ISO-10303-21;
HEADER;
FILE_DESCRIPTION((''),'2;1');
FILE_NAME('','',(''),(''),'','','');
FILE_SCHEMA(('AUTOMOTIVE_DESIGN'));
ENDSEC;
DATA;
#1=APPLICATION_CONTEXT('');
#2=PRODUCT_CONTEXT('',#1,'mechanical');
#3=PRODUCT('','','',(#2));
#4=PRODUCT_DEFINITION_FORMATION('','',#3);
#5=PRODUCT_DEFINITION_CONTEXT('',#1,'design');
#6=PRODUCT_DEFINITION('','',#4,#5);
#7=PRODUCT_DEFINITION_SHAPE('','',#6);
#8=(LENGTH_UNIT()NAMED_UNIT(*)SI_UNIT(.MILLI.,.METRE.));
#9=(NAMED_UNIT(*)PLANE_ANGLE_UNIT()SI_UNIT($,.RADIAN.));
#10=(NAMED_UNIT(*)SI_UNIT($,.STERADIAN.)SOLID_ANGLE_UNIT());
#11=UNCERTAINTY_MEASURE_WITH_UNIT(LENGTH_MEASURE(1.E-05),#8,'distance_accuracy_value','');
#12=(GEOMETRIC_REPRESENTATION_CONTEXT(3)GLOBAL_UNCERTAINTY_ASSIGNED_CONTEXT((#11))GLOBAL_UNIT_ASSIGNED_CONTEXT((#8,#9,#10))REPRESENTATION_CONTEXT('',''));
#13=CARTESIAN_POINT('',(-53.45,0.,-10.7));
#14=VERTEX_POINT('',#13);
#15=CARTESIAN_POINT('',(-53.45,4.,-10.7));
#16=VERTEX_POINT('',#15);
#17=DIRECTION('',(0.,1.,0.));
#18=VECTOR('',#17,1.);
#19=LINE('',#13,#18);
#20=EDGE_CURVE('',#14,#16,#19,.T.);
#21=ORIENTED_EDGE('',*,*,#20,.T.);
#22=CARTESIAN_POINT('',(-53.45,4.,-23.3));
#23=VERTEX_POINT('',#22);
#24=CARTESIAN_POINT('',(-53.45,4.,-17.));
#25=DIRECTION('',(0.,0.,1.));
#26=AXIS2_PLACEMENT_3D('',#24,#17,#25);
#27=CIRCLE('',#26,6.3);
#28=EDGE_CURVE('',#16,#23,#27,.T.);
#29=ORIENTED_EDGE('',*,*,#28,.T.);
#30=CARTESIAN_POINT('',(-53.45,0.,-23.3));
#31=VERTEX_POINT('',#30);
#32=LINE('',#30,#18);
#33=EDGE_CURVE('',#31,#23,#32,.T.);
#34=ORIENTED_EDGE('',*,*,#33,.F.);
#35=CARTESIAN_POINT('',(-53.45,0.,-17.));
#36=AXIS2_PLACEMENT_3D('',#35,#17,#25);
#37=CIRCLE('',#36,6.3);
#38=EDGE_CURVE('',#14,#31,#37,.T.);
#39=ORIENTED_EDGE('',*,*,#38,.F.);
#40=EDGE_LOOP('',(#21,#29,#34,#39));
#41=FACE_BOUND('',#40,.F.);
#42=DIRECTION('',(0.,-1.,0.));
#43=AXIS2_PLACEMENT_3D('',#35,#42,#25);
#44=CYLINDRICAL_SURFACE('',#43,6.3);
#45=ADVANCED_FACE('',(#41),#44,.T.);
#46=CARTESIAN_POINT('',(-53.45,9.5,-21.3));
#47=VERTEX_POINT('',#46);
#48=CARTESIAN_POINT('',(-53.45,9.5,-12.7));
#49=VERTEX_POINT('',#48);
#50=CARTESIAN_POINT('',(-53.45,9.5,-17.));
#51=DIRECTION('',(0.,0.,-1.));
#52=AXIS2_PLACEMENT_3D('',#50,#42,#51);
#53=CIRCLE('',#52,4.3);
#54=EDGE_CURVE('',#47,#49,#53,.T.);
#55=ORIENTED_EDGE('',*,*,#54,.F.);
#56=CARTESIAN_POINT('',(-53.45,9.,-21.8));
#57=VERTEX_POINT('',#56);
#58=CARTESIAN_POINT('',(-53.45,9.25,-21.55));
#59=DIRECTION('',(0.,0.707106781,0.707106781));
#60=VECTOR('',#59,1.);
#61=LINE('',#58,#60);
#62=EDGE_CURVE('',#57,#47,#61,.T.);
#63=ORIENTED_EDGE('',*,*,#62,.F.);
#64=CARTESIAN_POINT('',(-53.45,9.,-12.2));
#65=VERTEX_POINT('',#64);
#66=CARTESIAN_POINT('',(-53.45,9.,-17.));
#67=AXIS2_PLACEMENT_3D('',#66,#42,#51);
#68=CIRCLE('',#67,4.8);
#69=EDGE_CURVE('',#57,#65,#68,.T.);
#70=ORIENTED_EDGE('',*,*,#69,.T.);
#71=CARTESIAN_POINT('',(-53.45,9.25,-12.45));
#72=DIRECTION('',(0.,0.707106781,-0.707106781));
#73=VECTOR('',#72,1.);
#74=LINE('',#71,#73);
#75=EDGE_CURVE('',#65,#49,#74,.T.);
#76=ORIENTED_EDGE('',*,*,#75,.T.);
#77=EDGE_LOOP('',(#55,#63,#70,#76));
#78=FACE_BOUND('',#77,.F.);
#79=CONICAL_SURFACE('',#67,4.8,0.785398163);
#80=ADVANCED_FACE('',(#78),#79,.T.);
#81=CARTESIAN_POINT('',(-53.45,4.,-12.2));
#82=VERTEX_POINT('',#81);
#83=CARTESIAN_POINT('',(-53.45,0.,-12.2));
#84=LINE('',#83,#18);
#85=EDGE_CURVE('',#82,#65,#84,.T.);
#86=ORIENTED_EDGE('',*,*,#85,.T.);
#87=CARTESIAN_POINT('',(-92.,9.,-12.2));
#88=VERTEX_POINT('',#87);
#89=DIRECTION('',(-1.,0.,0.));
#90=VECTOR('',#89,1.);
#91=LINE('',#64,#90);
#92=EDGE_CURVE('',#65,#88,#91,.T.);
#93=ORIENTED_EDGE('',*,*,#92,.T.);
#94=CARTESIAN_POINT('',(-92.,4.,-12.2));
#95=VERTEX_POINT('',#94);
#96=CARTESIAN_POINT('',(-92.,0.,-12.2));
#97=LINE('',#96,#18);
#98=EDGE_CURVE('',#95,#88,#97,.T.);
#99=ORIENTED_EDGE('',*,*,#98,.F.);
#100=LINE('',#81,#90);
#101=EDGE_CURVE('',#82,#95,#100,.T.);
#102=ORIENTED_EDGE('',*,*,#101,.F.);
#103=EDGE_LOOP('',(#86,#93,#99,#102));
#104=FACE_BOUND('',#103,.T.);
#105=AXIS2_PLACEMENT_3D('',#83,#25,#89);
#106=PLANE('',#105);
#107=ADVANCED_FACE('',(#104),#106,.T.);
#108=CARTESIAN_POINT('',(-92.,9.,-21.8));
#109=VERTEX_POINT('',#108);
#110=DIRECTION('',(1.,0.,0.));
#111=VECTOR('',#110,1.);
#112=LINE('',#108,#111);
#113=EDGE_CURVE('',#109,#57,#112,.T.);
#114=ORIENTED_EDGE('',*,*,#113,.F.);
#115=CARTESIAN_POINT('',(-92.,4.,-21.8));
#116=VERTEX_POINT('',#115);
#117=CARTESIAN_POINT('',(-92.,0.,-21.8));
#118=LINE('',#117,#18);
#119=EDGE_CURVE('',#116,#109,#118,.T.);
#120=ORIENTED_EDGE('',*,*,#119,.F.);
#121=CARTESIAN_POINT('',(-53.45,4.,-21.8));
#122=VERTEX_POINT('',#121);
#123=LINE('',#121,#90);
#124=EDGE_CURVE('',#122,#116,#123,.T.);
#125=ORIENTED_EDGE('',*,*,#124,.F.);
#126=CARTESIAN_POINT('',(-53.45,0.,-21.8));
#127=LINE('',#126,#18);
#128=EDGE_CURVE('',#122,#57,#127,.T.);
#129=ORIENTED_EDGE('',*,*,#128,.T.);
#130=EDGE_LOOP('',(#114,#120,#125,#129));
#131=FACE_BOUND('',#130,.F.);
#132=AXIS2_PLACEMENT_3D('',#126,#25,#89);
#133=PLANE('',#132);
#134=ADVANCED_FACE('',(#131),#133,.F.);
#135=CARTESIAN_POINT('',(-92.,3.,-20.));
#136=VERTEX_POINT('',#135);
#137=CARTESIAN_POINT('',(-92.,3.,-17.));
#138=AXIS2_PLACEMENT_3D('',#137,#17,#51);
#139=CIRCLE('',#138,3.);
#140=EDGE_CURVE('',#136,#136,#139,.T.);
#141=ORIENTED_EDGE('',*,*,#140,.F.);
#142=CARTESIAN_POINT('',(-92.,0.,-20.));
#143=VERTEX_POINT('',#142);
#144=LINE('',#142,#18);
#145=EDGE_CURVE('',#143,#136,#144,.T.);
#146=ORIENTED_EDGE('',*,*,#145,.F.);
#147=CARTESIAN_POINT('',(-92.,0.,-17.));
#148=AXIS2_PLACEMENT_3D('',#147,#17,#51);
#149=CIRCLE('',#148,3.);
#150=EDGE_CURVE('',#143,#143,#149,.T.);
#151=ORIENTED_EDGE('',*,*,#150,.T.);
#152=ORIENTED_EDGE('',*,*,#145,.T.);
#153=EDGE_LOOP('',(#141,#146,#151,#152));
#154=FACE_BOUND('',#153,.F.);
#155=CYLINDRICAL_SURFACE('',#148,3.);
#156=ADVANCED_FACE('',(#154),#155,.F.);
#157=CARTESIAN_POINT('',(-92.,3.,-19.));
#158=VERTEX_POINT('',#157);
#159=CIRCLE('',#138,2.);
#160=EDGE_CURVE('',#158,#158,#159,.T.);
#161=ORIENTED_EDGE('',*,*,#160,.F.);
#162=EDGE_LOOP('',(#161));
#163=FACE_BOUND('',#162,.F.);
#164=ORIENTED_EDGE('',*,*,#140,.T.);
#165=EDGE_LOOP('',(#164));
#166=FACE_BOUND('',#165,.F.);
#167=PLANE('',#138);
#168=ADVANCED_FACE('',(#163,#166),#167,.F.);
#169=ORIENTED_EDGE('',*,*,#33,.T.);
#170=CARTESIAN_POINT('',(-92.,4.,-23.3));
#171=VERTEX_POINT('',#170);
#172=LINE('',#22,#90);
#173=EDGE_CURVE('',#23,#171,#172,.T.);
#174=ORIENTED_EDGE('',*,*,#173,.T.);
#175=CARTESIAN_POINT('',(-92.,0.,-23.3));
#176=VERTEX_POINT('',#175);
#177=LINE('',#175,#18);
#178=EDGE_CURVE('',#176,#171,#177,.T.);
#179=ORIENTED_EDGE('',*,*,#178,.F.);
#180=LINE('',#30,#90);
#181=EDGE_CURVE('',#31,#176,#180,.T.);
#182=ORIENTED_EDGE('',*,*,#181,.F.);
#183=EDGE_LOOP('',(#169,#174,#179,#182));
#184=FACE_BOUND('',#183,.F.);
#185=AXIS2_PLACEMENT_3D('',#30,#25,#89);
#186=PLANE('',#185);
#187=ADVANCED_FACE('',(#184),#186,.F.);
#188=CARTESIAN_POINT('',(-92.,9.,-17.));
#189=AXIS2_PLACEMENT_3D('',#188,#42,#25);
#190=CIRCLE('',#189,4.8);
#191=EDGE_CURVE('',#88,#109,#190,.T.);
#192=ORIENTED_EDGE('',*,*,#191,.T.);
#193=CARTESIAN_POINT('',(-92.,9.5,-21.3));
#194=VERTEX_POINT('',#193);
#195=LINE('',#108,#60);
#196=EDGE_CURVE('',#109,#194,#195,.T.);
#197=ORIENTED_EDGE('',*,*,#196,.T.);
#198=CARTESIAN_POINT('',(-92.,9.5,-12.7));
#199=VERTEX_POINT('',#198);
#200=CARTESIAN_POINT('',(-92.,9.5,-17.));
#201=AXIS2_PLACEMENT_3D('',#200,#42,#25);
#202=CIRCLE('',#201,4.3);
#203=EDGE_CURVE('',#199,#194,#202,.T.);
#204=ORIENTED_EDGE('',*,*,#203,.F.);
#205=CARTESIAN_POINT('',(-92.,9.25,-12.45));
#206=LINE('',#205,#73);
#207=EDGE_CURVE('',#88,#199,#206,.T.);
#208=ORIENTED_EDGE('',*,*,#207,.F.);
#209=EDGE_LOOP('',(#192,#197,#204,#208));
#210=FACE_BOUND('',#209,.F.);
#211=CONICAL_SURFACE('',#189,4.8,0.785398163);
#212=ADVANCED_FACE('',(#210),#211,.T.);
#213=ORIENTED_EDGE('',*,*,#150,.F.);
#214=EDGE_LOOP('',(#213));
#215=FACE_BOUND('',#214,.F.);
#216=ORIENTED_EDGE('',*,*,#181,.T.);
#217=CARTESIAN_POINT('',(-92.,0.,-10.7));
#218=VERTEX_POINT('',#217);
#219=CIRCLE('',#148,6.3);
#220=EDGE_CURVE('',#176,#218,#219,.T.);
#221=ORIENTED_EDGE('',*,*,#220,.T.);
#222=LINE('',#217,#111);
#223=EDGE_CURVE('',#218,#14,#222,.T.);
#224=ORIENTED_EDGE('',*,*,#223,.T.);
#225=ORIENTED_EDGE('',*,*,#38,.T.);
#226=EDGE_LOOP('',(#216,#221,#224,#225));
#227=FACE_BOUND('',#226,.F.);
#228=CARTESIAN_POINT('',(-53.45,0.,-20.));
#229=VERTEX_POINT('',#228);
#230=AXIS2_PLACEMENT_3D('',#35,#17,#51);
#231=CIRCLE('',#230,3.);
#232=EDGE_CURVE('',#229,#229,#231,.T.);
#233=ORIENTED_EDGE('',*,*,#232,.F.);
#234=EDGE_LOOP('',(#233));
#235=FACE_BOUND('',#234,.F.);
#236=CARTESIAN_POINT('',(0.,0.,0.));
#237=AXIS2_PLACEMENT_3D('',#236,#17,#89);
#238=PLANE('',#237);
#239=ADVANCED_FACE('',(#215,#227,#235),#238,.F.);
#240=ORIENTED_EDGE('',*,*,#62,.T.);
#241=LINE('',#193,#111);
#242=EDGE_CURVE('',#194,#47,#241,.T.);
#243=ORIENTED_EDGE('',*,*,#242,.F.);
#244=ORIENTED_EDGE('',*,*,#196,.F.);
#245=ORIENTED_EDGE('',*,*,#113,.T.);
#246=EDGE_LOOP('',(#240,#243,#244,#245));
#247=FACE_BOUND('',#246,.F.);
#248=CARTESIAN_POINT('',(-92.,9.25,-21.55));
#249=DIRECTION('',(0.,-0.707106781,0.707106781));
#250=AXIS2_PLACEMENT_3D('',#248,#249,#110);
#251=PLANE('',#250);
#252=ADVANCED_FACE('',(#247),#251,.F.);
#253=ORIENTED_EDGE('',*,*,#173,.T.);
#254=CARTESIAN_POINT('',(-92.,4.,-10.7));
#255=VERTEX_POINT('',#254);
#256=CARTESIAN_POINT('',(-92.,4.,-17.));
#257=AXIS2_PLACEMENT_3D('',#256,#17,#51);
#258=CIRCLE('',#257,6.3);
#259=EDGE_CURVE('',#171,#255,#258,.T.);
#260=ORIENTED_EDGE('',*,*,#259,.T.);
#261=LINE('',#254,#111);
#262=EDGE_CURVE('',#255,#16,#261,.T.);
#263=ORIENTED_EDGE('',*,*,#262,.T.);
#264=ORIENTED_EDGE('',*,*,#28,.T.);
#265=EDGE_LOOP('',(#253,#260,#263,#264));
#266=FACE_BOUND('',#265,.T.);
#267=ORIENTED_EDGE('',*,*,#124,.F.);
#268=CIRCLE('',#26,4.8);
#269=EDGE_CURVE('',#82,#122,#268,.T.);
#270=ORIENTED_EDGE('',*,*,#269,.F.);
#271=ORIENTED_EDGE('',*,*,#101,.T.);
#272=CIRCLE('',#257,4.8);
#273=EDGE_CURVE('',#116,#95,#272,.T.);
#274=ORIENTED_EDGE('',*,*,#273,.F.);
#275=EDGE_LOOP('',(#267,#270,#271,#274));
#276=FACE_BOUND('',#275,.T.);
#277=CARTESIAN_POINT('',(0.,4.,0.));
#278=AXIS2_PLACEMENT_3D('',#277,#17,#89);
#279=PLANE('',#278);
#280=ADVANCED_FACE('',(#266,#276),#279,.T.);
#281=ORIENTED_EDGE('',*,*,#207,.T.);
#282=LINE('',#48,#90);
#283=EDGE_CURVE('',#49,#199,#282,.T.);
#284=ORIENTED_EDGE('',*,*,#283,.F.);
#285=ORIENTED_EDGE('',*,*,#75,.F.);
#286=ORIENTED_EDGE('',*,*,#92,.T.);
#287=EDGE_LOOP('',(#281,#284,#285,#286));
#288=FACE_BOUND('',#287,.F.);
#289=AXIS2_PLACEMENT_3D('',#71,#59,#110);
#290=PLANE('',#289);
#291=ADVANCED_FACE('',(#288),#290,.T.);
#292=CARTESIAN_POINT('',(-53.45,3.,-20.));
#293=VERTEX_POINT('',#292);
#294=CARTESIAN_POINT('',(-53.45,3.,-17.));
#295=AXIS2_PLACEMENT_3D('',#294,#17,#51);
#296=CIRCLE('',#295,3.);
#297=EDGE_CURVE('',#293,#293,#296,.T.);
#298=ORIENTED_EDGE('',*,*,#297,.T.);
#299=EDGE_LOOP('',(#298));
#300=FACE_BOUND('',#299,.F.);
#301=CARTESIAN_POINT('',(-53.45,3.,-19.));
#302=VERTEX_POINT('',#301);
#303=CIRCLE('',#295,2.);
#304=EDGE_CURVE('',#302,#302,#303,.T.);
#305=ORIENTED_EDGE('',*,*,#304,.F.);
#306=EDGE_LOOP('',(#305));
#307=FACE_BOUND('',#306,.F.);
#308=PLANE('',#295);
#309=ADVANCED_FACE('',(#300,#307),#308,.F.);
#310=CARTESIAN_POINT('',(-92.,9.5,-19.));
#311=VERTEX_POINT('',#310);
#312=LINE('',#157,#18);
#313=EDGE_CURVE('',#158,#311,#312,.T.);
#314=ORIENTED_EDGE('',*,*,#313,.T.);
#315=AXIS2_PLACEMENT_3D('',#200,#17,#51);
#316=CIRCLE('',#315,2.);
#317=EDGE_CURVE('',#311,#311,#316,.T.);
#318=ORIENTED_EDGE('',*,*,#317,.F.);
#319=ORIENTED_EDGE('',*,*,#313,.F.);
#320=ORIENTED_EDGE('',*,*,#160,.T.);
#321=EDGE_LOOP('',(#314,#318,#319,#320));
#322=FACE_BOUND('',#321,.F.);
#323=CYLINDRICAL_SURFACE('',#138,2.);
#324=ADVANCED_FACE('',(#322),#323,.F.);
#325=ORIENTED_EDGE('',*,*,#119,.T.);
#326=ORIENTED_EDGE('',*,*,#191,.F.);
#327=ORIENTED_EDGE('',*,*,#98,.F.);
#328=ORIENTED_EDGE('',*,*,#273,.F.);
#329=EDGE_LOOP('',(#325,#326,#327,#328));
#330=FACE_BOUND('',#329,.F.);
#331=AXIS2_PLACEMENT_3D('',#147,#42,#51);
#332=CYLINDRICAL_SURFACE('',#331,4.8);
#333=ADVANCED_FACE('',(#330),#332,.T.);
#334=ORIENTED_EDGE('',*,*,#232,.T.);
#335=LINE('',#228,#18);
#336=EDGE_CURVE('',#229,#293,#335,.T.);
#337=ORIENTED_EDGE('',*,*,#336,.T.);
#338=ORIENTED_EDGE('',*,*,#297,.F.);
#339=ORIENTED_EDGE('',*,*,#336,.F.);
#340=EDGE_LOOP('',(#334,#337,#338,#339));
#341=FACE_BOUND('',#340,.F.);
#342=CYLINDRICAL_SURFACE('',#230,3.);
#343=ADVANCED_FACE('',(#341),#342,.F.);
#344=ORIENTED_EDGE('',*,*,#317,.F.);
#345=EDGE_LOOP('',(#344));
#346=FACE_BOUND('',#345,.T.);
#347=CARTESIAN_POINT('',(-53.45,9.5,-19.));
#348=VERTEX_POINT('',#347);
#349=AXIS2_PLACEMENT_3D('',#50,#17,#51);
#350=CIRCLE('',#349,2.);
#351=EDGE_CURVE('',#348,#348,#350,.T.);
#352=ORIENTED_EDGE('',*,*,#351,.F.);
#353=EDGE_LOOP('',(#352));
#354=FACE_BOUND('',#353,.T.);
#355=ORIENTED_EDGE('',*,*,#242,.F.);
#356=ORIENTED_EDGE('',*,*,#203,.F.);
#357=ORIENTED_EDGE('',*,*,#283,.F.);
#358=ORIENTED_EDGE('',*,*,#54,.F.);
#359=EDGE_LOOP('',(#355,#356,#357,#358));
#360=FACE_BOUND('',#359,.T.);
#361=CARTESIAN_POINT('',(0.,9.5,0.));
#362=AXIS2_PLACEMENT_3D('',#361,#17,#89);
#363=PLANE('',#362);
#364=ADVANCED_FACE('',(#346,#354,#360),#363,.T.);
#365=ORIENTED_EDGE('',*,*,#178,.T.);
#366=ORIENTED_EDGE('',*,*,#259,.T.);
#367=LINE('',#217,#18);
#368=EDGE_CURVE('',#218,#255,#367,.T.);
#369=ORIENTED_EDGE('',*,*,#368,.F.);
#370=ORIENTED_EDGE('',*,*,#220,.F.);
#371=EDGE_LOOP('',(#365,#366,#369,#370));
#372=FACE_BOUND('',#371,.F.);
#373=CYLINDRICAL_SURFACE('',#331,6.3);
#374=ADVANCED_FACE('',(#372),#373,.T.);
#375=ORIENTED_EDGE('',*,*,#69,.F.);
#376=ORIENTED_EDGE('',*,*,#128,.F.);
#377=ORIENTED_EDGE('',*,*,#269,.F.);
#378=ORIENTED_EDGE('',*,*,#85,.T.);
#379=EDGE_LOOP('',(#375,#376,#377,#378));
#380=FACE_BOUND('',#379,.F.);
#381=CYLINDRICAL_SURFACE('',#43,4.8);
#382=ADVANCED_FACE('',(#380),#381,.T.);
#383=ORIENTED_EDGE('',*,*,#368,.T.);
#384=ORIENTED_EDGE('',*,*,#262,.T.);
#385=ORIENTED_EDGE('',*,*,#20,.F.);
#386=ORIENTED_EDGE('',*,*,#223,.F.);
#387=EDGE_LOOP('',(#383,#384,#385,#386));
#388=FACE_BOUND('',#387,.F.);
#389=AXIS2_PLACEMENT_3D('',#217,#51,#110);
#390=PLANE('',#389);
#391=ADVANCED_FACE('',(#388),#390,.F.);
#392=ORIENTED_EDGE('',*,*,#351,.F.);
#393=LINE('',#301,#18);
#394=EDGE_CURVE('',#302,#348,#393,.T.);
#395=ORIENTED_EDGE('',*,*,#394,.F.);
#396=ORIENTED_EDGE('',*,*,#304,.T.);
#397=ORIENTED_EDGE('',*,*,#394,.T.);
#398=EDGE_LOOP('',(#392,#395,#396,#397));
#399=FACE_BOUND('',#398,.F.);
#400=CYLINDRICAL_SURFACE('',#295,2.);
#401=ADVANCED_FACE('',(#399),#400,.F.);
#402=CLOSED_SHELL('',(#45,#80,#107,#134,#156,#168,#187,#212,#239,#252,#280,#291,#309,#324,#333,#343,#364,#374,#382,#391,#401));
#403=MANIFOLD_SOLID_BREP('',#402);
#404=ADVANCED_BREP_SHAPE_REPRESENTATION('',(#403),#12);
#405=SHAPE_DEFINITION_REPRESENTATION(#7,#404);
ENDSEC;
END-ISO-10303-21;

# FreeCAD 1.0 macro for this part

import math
import FreeCAD as App
import Part
import Sketcher

V = App.Vector


def edges_at(feature, points):
    """Names of the edges that pass closest to the given points."""
    edges = feature.Shape.Edges
    near = lambda p: min(range(len(edges)), key=lambda i: edges[i].distToShape(Part.Vertex(*p))[0])
    return sorted({f"Edge{near(p) + 1}" for p in points})

doc = App.newDocument("Part")
body = doc.addObject("PartDesign::Body", "Body")

# Sketch on XZ plane
sketch1 = body.newObject("Sketcher::SketchObject", "Sketch")
sketch1.AttachmentSupport = (doc.getObject("XZ_Plane"), [""])
sketch1.MapMode = "FlatFace"
sketch1.addGeometry(Part.LineSegment(V(-92, -12.2, 0), V(-53.5, -12.2, 0)), False)
sketch1.addGeometry(Part.ArcOfCircle(Part.Circle(V(-53.5, -17, 0), V(0, 0, 1), 4.8), math.radians(-90), math.radians(90)), False)
sketch1.addGeometry(Part.LineSegment(V(-53.5, -21.8, 0), V(-92, -21.8, 0)), False)
sketch1.addGeometry(Part.ArcOfCircle(Part.Circle(V(-92, -17, 0), V(0, 0, 1), 4.8), math.radians(90), math.radians(270)), False)
sketch1.addConstraint(Sketcher.Constraint("Tangent", 0, 2, 1, 2))
sketch1.addConstraint(Sketcher.Constraint("Tangent", 1, 1, 2, 1))
sketch1.addConstraint(Sketcher.Constraint("Tangent", 2, 2, 3, 2))
sketch1.addConstraint(Sketcher.Constraint("Tangent", 3, 1, 0, 1))
sketch1.addConstraint(Sketcher.Constraint("Horizontal", 0))
sketch1.addConstraint(Sketcher.Constraint("Horizontal", 2))
sketch1.addConstraint(Sketcher.Constraint("Radius", 1, 4.8))
sketch1.addConstraint(Sketcher.Constraint("DistanceY", 1, 3, -1, 1, 17.0))
sketch1.addConstraint(Sketcher.Constraint("DistanceX", 3, 3, -1, 1, 92.0))
sketch1.addConstraint(Sketcher.Constraint("DistanceX", 0, 1, 0, 2, 38.55))
pad1 = body.newObject("PartDesign::Pad", "Pad")
pad1.Profile = sketch1
pad1.Length = 9.5
pad1.Reversed = True

# Sketch on XZ plane
sketch2 = body.newObject("Sketcher::SketchObject", "Sketch001")
sketch2.AttachmentSupport = (doc.getObject("XZ_Plane"), [""])
sketch2.MapMode = "FlatFace"
sketch2.addGeometry(Part.LineSegment(V(-53.5, -23.3, 0), V(-92, -23.3, 0)), False)
sketch2.addGeometry(Part.ArcOfCircle(Part.Circle(V(-92, -17, 0), V(0, 0, 1), 6.3), math.radians(90), math.radians(270)), False)
sketch2.addGeometry(Part.LineSegment(V(-92, -10.7, 0), V(-53.5, -10.7, 0)), False)
sketch2.addGeometry(Part.ArcOfCircle(Part.Circle(V(-53.5, -17, 0), V(0, 0, 1), 6.3), math.radians(-90), math.radians(90)), False)
sketch2.addGeometry(Part.ArcOfCircle(Part.Circle(V(-53.5, -17, 0), V(0, 0, 1), 4.8), math.radians(-90), math.radians(90)), False)
sketch2.addGeometry(Part.LineSegment(V(-53.5, -12.2, 0), V(-92, -12.2, 0)), False)
sketch2.addGeometry(Part.ArcOfCircle(Part.Circle(V(-92, -17, 0), V(0, 0, 1), 4.8), math.radians(90), math.radians(270)), False)
sketch2.addGeometry(Part.LineSegment(V(-92, -21.8, 0), V(-53.5, -21.8, 0)), False)
sketch2.addConstraint(Sketcher.Constraint("Tangent", 0, 2, 1, 2))
sketch2.addConstraint(Sketcher.Constraint("Tangent", 1, 1, 2, 1))
sketch2.addConstraint(Sketcher.Constraint("Tangent", 2, 2, 3, 2))
sketch2.addConstraint(Sketcher.Constraint("Tangent", 3, 1, 0, 1))
sketch2.addConstraint(Sketcher.Constraint("Tangent", 4, 2, 5, 1))
sketch2.addConstraint(Sketcher.Constraint("Tangent", 5, 2, 6, 1))
sketch2.addConstraint(Sketcher.Constraint("Tangent", 6, 2, 7, 1))
sketch2.addConstraint(Sketcher.Constraint("Tangent", 7, 2, 4, 1))
sketch2.addConstraint(Sketcher.Constraint("Horizontal", 0))
sketch2.addConstraint(Sketcher.Constraint("Horizontal", 2))
sketch2.addConstraint(Sketcher.Constraint("Horizontal", 5))
sketch2.addConstraint(Sketcher.Constraint("Horizontal", 7))
sketch2.addConstraint(Sketcher.Constraint("Coincident", 4, 3, 3, 3))
sketch2.addConstraint(Sketcher.Constraint("Vertical", 6, 3, 0, 2))
sketch2.addConstraint(Sketcher.Constraint("Radius", 1, 6.3))
sketch2.addConstraint(Sketcher.Constraint("Radius", 4, 4.8))
sketch2.addConstraint(Sketcher.Constraint("DistanceY", 1, 3, -1, 1, 17.0))
sketch2.addConstraint(Sketcher.Constraint("DistanceX", 1, 3, -1, 1, 92.0))
sketch2.addConstraint(Sketcher.Constraint("DistanceX", 0, 2, 0, 1, 38.55))
pad2 = body.newObject("PartDesign::Pad", "Pad001")
pad2.Profile = sketch2
pad2.Length = 4
pad2.Reversed = True
doc.recompute()

chamfer = body.newObject("PartDesign::Chamfer", "Chamfer")
chamfer.Base = (pad2, edges_at(pad2, [
    (-72.725, 9.5, -12.2),
    (-48.65, 9.5, -17),
    (-72.725, 9.5, -21.8),
    (-96.8, 9.5, -17),
]))
chamfer.Size = 0.5

# Sketch on XZ plane
sketch3 = body.newObject("Sketcher::SketchObject", "Sketch002")
sketch3.AttachmentSupport = (doc.getObject("XZ_Plane"), [""])
sketch3.MapMode = "FlatFace"
sketch3.addGeometry(Part.Circle(V(-35, -8.5, 0), V(0, 0, 1), 2), False)
sketch3.addGeometry(Part.Circle(V(0, -17, 0), V(0, 0, 1), 2), False)
sketch3.addGeometry(Part.Circle(V(-35, -42.5, 0), V(0, 0, 1), 2), False)
sketch3.addGeometry(Part.Circle(V(-35, -25.5, 0), V(0, 0, 1), 2), False)
sketch3.addGeometry(Part.Circle(V(-92, -17, 0), V(0, 0, 1), 2), False)
sketch3.addGeometry(Part.Circle(V(-53.5, -17, 0), V(0, 0, 1), 2), False)
sketch3.addConstraint(Sketcher.Constraint("Equal", 0, 1))
sketch3.addConstraint(Sketcher.Constraint("Equal", 1, 2))
sketch3.addConstraint(Sketcher.Constraint("Equal", 2, 3))
sketch3.addConstraint(Sketcher.Constraint("Equal", 3, 4))
sketch3.addConstraint(Sketcher.Constraint("Equal", 4, 5))
sketch3.addConstraint(Sketcher.Constraint("PointOnObject", 1, 3, -2))
sketch3.addConstraint(Sketcher.Constraint("Horizontal", 1, 3, 4, 3))
sketch3.addConstraint(Sketcher.Constraint("Horizontal", 4, 3, 5, 3))
sketch3.addConstraint(Sketcher.Constraint("Vertical", 0, 3, 2, 3))
sketch3.addConstraint(Sketcher.Constraint("Vertical", 2, 3, 3, 3))
sketch3.addConstraint(Sketcher.Constraint("Diameter", 0, 4.0))
sketch3.addConstraint(Sketcher.Constraint("DistanceX", 0, 3, -1, 1, 35.0))
sketch3.addConstraint(Sketcher.Constraint("DistanceY", 1, 3, -1, 1, 17.0))
sketch3.addConstraint(Sketcher.Constraint("DistanceX", 4, 3, -1, 1, 92.0))
sketch3.addConstraint(Sketcher.Constraint("DistanceY", 2, 3, 0, 3, 34.0))
sketch3.addConstraint(Sketcher.Constraint("DistanceY", 3, 3, 0, 3, 17.0))
sketch3.addConstraint(Sketcher.Constraint("DistanceY", 0, 3, -1, 1, 8.5))
sketch3.addConstraint(Sketcher.Constraint("DistanceX", 5, 3, -1, 1, 53.45))
doc.recompute()
hole = body.newObject("PartDesign::Hole", "Hole")
hole.Profile = sketch3
hole.ThreadType = "None"
hole.Diameter = 4
hole.DepthType = "ThroughAll"
hole.HoleCutType = "Counterbore"
hole.HoleCutDiameter = 6
hole.HoleCutDepth = 3

doc.recompute()
